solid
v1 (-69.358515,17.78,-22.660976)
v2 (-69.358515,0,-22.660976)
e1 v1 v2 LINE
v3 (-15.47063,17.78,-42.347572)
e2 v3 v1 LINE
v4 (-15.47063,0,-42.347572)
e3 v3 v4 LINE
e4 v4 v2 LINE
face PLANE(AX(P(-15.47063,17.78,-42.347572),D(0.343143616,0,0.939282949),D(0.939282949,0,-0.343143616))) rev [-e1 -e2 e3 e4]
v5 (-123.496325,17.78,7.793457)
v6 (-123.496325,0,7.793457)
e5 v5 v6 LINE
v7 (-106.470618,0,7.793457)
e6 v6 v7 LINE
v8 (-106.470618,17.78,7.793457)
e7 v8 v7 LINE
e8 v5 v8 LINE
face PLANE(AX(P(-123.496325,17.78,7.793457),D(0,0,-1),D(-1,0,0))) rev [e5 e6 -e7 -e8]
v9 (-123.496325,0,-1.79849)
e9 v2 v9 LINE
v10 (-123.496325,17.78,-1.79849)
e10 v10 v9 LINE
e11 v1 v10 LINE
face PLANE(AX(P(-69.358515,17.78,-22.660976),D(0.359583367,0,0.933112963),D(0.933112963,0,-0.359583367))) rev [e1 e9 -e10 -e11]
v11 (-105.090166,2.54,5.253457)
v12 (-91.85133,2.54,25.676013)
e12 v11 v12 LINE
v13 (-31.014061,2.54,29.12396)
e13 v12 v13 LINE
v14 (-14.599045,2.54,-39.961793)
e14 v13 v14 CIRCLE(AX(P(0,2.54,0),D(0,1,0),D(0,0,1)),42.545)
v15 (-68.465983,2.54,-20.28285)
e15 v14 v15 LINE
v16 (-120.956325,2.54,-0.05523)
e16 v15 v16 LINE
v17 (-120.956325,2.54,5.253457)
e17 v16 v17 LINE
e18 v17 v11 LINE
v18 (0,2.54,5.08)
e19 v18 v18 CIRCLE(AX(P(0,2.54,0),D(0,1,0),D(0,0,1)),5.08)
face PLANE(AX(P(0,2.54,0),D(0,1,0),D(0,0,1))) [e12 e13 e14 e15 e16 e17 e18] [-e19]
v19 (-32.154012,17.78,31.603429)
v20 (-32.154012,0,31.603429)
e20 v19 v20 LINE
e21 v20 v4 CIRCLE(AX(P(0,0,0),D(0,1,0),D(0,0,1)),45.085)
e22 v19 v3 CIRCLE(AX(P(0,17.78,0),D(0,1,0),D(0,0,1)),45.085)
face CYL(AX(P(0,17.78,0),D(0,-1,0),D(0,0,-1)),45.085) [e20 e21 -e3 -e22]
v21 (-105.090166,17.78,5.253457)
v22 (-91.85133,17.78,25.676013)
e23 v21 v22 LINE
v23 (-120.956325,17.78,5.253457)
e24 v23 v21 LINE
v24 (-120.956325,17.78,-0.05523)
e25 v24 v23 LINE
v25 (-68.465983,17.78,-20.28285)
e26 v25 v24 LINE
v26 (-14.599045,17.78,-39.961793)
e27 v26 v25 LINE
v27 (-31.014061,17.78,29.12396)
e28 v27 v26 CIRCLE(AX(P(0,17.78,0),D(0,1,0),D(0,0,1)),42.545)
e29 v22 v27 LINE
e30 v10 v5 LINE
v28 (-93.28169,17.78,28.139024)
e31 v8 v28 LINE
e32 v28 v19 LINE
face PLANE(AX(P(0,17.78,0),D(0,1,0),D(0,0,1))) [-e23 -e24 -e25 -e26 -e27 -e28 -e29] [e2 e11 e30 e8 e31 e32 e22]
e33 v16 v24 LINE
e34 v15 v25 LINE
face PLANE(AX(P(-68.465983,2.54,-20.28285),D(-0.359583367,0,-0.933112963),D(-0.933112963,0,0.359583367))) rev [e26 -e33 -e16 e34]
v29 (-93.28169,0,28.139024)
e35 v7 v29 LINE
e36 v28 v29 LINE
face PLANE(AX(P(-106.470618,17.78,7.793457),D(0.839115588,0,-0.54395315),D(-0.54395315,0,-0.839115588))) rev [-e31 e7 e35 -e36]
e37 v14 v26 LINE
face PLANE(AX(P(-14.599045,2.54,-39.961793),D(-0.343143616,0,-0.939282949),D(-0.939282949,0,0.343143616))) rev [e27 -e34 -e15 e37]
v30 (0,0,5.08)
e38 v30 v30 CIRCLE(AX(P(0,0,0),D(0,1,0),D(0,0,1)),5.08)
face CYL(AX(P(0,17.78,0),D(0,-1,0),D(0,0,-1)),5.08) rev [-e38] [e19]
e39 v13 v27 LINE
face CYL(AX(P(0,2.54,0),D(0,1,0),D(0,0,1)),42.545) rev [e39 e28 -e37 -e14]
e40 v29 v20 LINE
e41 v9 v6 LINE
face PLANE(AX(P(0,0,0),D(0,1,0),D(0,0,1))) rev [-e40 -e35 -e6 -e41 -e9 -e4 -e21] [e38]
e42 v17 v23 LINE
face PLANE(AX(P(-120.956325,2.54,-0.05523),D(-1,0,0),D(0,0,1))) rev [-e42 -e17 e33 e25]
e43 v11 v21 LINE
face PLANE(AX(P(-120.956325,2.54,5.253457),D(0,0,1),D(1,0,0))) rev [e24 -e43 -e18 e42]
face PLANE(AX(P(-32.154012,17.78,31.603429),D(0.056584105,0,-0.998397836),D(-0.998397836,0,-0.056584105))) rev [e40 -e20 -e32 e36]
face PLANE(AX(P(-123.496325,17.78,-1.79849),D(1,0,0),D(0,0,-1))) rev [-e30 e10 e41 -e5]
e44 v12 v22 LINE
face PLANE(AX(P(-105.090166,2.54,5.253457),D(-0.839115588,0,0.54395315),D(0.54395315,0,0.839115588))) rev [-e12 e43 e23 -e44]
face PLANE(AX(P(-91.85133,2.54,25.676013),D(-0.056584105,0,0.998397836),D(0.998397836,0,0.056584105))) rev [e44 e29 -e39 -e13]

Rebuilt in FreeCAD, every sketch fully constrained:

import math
import FreeCAD as App
import Part
import Sketcher
from FreeCAD import Vector
Q = App.Units.Quantity

doc = App.newDocument("Part")
body = doc.addObject("PartDesign::Body", "Body")

sketch1 = body.newObject("Sketcher::SketchObject", "Sketch")
sketch1.AttachmentSupport = (doc.getObject("XZ_Plane"), [""])
sketch1.MapMode = "FlatFace"
sketch1.addGeometry([
    Part.LineSegment(Vector(-93, 28, 0), Vector(-32, 32, 0)),
    Part.ArcOfCircle(Part.Circle(Vector(0, 0, 0), Vector(0, 0, 1), 45), math.radians(-110), math.radians(135)),
    Part.LineSegment(Vector(-15, -42, 0), Vector(-69, -23, 0)),
    Part.LineSegment(Vector(-69, -23, 0), Vector(-123, -2, 0)),
    Part.LineSegment(Vector(-123, -2, 0), Vector(-123, 8, 0)),
    Part.LineSegment(Vector(-123, 8, 0), Vector(-106, 8, 0)),
    Part.LineSegment(Vector(-106, 8, 0), Vector(-93, 28, 0)),
    Part.Circle(Vector(0, 0, 0), Vector(0, 0, 1), 5),
], False)
sketch1.addConstraint([
    Sketcher.Constraint("Coincident", 0, 2, 1, 2),
    Sketcher.Constraint("Tangent", 1, 1, 2, 1),
    Sketcher.Constraint("Coincident", 2, 2, 3, 1),
    Sketcher.Constraint("Coincident", 3, 2, 4, 1),
    Sketcher.Constraint("Coincident", 4, 2, 5, 1),
    Sketcher.Constraint("Coincident", 5, 2, 6, 1),
    Sketcher.Constraint("Coincident", 6, 2, 0, 1),
    Sketcher.Constraint("Vertical", 4),
    Sketcher.Constraint("Horizontal", 5),
    Sketcher.Constraint("Coincident", 1, 3, -1, 1),
    Sketcher.Constraint("Coincident", 7, 3, -1, 1),
    Sketcher.Constraint("Diameter", 7, Q("0.4 in")),
    Sketcher.Constraint("Radius", 1, Q("1.775 in")),
    Sketcher.Constraint("DistanceY", 2, 2, 6, 2, Q("2 in")),
    Sketcher.Constraint("Distance", 2, Q("57.371301 mm")),
    Sketcher.Constraint("DistanceY", 1, 1, 0, 2, Q("73.951001 mm")),
    Sketcher.Constraint("Distance", 0, Q("61.225772 mm")),
    Sketcher.Constraint("Distance", 6, Q("24.246441 mm")),
    Sketcher.Constraint("DistanceX", 5, 1, 5, 2, Q("17.025707 mm")),
    Sketcher.Constraint("DistanceY", 4, 1, 4, 2, Q("9.591948 mm")),
    Sketcher.Constraint("DistanceX", 0, 2, -1, 1, Q("32.154012 mm")),
    Sketcher.Constraint("DistanceY", 3, 2, -1, 1, Q("1.79849 mm")),
])
pad1 = body.newObject("PartDesign::Pad", "Pad")
pad1.Profile = sketch1
pad1.Length = Q("0.7 in")
pad1.Reversed = True

sketch2 = body.newObject("Sketcher::SketchObject", "Sketch001")
sketch2.AttachmentSupport = (doc.getObject("XZ_Plane"), [""])
sketch2.MapMode = "FlatFace"
sketch2.AttachmentOffset = App.Placement(Vector(0, 0, -0.7 * 25.4), App.Rotation())
sketch2.addGeometry([
    Part.LineSegment(Vector(-15, -40, 0), Vector(-68, -20, 0)),
    Part.LineSegment(Vector(-68, -20, 0), Vector(-121, 0, 0)),
    Part.LineSegment(Vector(-121, 0, 0), Vector(-121, 5, 0)),
    Part.LineSegment(Vector(-121, 5, 0), Vector(-105, 5, 0)),
    Part.LineSegment(Vector(-105, 5, 0), Vector(-92, 26, 0)),
    Part.LineSegment(Vector(-92, 26, 0), Vector(-31, 29, 0)),
    Part.ArcOfCircle(Part.Circle(Vector(0, 0, 0), Vector(0, 0, 1), 43), math.radians(-110), math.radians(137)),
], False)
sketch2.addConstraint([
    Sketcher.Constraint("Coincident", 0, 2, 1, 1),
    Sketcher.Constraint("Coincident", 1, 2, 2, 1),
    Sketcher.Constraint("Coincident", 2, 2, 3, 1),
    Sketcher.Constraint("Coincident", 3, 2, 4, 1),
    Sketcher.Constraint("Coincident", 4, 2, 5, 1),
    Sketcher.Constraint("Coincident", 5, 2, 6, 2),
    Sketcher.Constraint("Tangent", 6, 1, 0, 1),
    Sketcher.Constraint("Vertical", 2),
    Sketcher.Constraint("Horizontal", 3),
    Sketcher.Constraint("Coincident", 6, 3, -1, 1),
    Sketcher.Constraint("Radius", 6, Q("1.675 in")),
    Sketcher.Constraint("Distance", 0, Q("57.349 mm")),
    Sketcher.Constraint("DistanceX", 3, 1, 3, 2, Q("15.866159 mm")),
    Sketcher.Constraint("Distance", 4, Q("24.338192 mm")),
    Sketcher.Constraint("DistanceY", 2, 1, 2, 2, Q("5.308688 mm")),
    Sketcher.Constraint("DistanceY", 0, 2, -1, 1, Q("20.28285 mm")),
    Sketcher.Constraint("DistanceY", 1, 2, -1, 1, Q("0.05523 mm")),
    Sketcher.Constraint("DistanceX", 4, 2, -1, 1, Q("91.85133 mm")),
    Sketcher.Constraint("DistanceX", 5, 2, -1, 1, Q("31.014061 mm")),
    Sketcher.Constraint("DistanceX", 3, 2, 6, 1, Q("90.49112 mm")),
])
pocket1 = body.newObject("PartDesign::Pocket", "Pocket")
pocket1.Profile = sketch2
pocket1.Length = Q("0.6 in")
pocket1.Reversed = True

doc.recompute()
